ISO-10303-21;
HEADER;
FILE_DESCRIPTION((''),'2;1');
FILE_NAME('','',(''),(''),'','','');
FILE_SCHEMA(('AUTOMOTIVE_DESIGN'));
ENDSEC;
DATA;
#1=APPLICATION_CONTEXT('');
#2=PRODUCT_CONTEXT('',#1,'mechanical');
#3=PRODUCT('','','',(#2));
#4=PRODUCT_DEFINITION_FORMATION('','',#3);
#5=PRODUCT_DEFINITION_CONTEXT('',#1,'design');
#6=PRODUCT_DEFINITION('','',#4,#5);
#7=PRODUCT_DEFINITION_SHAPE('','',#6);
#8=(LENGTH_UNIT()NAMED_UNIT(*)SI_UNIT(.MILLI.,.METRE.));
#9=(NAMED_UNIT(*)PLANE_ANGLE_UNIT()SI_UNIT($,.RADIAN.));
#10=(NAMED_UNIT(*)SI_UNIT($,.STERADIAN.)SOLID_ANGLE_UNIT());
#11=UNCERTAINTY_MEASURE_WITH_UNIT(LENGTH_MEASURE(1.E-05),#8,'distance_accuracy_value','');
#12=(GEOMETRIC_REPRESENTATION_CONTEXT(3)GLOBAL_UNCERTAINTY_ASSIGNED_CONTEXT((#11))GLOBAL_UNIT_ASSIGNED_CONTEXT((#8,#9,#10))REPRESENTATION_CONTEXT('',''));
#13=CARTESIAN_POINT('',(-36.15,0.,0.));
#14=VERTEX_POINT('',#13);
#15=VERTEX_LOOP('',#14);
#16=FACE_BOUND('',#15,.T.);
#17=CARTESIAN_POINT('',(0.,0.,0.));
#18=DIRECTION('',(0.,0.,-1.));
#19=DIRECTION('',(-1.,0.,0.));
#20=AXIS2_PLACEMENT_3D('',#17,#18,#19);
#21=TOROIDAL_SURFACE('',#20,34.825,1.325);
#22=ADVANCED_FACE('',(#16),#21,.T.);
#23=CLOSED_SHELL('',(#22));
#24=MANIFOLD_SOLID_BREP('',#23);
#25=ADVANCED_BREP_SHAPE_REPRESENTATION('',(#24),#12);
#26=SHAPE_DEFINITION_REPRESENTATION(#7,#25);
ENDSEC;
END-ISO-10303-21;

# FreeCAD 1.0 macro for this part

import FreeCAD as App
import Part
import Sketcher
from FreeCAD import Vector

doc = App.newDocument("Part")
body = doc.addObject("PartDesign::Body", "Body")

# Sketch on XZ plane
sketch1 = body.newObject("Sketcher::SketchObject", "Sketch")
sketch1.AttachmentSupport = (doc.getObject("XZ_Plane"), [""])
sketch1.MapMode = "FlatFace"
sketch1.addGeometry(Part.Circle(Vector(-34.8, 0, 0), Vector(0, 0, 1), 1.3), False)
sketch1.addConstraint([
    Sketcher.Constraint("PointOnObject", 0, 3, -1),
    Sketcher.Constraint("Diameter", 0, 2.65),
    Sketcher.Constraint("DistanceX", 0, 3, -1, 1, 34.825),
])

# Sketch on XY plane
sketch2 = body.newObject("Sketcher::SketchObject", "Sketch001")
sketch2.AttachmentSupport = (doc.getObject("XY_Plane"), [""])
sketch2.MapMode = "FlatFace"
sketch2.addGeometry(Part.Circle(Vector(0, 0, 0), Vector(0, 0, 1), 34), False)
sketch2.addConstraint([
    Sketcher.Constraint("Coincident", 0, 3, -1, 1),
    Sketcher.Constraint("Diameter", 0, 67.0),
])
doc.recompute()

additivepipe = body.newObject("PartDesign::AdditivePipe", "AdditivePipe")
additivepipe.Profile = sketch1
additivepipe.Spine = (sketch2, ["Edge1"])

doc.recompute()
